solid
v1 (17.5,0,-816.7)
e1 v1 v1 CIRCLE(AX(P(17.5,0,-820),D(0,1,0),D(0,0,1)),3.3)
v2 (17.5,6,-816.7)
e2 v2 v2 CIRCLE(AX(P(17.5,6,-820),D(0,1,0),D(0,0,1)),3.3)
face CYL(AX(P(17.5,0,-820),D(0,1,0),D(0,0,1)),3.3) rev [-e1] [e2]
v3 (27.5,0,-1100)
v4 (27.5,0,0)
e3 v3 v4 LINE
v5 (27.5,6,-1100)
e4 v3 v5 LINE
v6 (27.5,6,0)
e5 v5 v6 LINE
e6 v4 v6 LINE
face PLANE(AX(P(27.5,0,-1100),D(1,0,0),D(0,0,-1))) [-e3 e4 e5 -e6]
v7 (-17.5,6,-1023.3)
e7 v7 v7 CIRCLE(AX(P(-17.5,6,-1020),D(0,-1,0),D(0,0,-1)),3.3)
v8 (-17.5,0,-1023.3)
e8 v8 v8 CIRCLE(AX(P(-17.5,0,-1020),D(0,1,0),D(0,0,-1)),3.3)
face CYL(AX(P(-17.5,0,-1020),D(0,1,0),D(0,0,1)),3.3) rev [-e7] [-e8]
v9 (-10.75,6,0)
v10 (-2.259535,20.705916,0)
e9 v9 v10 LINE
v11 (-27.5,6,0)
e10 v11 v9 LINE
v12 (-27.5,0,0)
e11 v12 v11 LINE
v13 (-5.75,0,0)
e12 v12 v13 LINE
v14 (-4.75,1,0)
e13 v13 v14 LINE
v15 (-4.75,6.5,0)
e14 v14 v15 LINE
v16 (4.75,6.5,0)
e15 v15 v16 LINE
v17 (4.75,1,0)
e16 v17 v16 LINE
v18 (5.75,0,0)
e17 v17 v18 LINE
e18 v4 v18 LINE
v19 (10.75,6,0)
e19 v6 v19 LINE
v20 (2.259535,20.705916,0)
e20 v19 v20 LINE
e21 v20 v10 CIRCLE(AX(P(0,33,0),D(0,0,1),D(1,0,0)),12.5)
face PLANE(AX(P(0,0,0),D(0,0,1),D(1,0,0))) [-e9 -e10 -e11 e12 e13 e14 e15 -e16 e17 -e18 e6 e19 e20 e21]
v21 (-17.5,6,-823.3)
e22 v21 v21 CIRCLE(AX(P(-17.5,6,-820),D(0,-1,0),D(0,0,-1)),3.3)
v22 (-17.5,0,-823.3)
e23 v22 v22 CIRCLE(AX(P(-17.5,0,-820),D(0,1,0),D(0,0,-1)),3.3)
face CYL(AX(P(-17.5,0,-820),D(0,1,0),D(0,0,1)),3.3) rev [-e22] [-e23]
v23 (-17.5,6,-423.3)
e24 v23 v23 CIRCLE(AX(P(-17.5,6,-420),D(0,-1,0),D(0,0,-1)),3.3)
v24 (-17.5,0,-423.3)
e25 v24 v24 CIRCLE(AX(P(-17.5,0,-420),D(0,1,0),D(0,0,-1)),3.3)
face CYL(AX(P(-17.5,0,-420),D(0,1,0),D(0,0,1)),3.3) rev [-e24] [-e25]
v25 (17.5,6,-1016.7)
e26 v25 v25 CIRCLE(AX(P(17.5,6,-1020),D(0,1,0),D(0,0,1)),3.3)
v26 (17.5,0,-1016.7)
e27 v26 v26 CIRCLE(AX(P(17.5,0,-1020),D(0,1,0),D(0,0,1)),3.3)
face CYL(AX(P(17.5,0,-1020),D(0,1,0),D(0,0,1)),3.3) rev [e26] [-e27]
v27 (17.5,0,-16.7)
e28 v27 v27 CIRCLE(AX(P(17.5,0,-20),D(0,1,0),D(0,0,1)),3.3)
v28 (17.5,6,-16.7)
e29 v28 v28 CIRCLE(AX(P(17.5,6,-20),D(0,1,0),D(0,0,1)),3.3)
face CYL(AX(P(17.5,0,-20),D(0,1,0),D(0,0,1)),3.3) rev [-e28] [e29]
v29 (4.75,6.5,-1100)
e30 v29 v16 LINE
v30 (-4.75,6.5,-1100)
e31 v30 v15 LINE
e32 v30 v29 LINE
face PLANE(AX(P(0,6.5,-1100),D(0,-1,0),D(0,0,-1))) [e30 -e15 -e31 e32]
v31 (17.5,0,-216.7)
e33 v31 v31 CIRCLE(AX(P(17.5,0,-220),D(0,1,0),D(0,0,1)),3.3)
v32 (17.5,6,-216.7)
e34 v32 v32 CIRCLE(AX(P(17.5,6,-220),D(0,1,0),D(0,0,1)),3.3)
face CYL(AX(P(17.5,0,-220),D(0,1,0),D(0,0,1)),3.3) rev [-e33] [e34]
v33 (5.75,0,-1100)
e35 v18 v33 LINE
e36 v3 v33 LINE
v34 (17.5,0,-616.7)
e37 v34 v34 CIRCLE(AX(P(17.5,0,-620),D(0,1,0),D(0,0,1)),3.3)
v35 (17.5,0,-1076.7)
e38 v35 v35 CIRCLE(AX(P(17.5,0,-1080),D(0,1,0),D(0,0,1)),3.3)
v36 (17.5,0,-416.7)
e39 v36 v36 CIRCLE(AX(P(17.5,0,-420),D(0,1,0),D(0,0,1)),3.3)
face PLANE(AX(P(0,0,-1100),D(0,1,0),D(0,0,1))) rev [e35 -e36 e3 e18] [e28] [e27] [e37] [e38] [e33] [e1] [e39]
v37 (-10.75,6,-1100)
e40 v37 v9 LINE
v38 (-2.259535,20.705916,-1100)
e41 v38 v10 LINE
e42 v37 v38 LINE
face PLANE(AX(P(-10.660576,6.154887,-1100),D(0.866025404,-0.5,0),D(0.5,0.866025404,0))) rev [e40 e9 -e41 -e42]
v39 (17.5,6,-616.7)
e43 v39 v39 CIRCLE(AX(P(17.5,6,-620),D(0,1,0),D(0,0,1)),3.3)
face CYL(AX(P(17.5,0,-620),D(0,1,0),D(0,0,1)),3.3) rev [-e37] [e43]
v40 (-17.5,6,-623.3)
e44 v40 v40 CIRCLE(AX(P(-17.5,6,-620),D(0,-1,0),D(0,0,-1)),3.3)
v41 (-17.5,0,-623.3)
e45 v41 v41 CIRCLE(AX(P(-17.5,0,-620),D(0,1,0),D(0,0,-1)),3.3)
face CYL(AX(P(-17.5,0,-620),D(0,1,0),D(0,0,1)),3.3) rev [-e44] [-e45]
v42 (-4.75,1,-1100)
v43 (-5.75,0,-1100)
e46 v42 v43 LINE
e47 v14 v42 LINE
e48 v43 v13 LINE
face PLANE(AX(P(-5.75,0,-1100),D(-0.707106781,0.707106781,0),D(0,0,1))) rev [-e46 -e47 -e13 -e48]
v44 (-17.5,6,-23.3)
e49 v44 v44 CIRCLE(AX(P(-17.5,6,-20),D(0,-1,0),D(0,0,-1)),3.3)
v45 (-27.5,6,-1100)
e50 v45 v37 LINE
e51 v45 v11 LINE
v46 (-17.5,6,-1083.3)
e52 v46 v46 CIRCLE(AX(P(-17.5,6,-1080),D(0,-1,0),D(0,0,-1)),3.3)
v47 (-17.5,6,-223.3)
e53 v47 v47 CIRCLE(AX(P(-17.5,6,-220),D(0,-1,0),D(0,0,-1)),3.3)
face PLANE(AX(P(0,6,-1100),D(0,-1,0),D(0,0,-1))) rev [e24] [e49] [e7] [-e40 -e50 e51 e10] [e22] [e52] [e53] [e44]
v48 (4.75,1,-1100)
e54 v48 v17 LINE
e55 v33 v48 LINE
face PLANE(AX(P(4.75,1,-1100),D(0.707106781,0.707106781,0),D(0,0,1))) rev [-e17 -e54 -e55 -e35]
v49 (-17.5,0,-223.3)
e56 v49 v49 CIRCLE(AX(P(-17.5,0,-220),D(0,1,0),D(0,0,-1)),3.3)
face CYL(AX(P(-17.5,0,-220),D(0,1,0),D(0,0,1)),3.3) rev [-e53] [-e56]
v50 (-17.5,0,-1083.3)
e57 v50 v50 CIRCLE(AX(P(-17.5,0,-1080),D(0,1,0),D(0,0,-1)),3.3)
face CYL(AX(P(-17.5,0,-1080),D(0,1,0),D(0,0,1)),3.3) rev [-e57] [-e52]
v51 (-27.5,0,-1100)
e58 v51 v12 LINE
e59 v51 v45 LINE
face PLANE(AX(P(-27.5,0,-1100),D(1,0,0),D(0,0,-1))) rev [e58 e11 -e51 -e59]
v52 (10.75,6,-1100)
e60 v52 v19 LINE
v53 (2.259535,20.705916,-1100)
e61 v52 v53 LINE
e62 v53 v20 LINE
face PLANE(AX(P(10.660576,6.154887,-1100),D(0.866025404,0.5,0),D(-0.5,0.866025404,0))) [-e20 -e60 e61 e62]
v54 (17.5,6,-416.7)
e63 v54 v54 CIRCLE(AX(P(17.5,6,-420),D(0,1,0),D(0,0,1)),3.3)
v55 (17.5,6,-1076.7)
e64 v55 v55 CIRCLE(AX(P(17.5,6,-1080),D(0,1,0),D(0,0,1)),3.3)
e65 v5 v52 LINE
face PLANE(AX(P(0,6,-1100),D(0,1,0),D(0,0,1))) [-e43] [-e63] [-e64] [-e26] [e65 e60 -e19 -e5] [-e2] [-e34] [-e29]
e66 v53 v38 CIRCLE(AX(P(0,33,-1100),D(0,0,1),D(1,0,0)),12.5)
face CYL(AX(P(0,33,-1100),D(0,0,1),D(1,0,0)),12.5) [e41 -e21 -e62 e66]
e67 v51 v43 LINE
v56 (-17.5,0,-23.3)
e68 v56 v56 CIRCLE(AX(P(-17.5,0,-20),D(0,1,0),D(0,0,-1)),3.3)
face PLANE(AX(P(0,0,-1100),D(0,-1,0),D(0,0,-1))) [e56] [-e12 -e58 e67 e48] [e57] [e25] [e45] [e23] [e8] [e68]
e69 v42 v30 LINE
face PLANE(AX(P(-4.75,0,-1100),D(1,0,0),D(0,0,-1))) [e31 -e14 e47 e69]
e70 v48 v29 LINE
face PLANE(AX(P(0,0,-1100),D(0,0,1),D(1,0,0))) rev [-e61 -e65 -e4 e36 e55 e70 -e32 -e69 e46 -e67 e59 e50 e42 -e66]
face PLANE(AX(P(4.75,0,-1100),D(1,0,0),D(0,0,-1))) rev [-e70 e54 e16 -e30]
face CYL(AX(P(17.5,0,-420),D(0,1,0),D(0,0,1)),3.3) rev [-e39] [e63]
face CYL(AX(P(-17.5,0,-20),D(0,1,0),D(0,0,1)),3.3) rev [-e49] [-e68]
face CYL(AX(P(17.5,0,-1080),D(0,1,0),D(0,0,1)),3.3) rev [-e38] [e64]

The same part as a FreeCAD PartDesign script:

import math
import FreeCAD as App
import Part
import Sketcher
Q = App.Units.Quantity


def edges_at(feature, points):
    """Names of the edges that pass closest to the given points."""
    edges = feature.Shape.Edges
    near = lambda p: min(range(len(edges)), key=lambda i: edges[i].distToShape(Part.Vertex(*p))[0])
    return sorted({f"Edge{near(p) + 1}" for p in points})

doc = App.newDocument("Part")
body = doc.addObject("PartDesign::Body", "Body")

sketch1 = doc.addObject("Sketcher::SketchObject", "Sketch")
body.addObject(sketch1)
sketch1.AttachmentSupport = (doc.XY_Plane, [""])
sketch1.MapMode = "FlatFace"
sketch1.addGeometry(Part.ArcOfCircle(Part.Circle(App.Vector(0, 33, 0), App.Vector(0, 0, 1), 12.5), math.radians(-80), math.radians(260)), False)
sketch1.addGeometry(Part.LineSegment(App.Vector(-2.3, 20.7, 0), App.Vector(-10.8, 6, 0)), False)
sketch1.addGeometry(Part.LineSegment(App.Vector(-10.8, 6, 0), App.Vector(-27.5, 6, 0)), False)
sketch1.addGeometry(Part.LineSegment(App.Vector(-27.5, 6, 0), App.Vector(-27.5, 0, 0)), False)
sketch1.addGeometry(Part.LineSegment(App.Vector(-27.5, 0, 0), App.Vector(-4.8, 0, 0)), False)
sketch1.addGeometry(Part.LineSegment(App.Vector(-4.8, 0, 0), App.Vector(-4.8, 6.5, 0)), False)
sketch1.addGeometry(Part.LineSegment(App.Vector(-4.8, 6.5, 0), App.Vector(4.8, 6.5, 0)), False)
sketch1.addGeometry(Part.LineSegment(App.Vector(4.8, 6.5, 0), App.Vector(4.8, 0, 0)), False)
sketch1.addGeometry(Part.LineSegment(App.Vector(4.8, 0, 0), App.Vector(27.5, 0, 0)), False)
sketch1.addGeometry(Part.LineSegment(App.Vector(27.5, 0, 0), App.Vector(27.5, 6, 0)), False)
sketch1.addGeometry(Part.LineSegment(App.Vector(27.5, 6, 0), App.Vector(10.8, 6, 0)), False)
sketch1.addGeometry(Part.LineSegment(App.Vector(10.8, 6, 0), App.Vector(2.3, 20.7, 0)), False)
sketch1.addConstraint(Sketcher.Constraint("Coincident", 0, 2, 1, 1))
sketch1.addConstraint(Sketcher.Constraint("Coincident", 1, 2, 2, 1))
sketch1.addConstraint(Sketcher.Constraint("Coincident", 2, 2, 3, 1))
sketch1.addConstraint(Sketcher.Constraint("Coincident", 3, 2, 4, 1))
sketch1.addConstraint(Sketcher.Constraint("Coincident", 4, 2, 5, 1))
sketch1.addConstraint(Sketcher.Constraint("Coincident", 5, 2, 6, 1))
sketch1.addConstraint(Sketcher.Constraint("Coincident", 6, 2, 7, 1))
sketch1.addConstraint(Sketcher.Constraint("Coincident", 7, 2, 8, 1))
sketch1.addConstraint(Sketcher.Constraint("Coincident", 8, 2, 9, 1))
sketch1.addConstraint(Sketcher.Constraint("Coincident", 9, 2, 10, 1))
sketch1.addConstraint(Sketcher.Constraint("Coincident", 10, 2, 11, 1))
sketch1.addConstraint(Sketcher.Constraint("Coincident", 11, 2, 0, 1))
sketch1.addConstraint(Sketcher.Constraint("Horizontal", 2))
sketch1.addConstraint(Sketcher.Constraint("Vertical", 3))
sketch1.addConstraint(Sketcher.Constraint("Horizontal", 4))
sketch1.addConstraint(Sketcher.Constraint("Vertical", 5))
sketch1.addConstraint(Sketcher.Constraint("Horizontal", 6))
sketch1.addConstraint(Sketcher.Constraint("Vertical", 7))
sketch1.addConstraint(Sketcher.Constraint("Horizontal", 8))
sketch1.addConstraint(Sketcher.Constraint("Vertical", 9))
sketch1.addConstraint(Sketcher.Constraint("Horizontal", 10))
sketch1.addConstraint(Sketcher.Constraint("Symmetric", 4, 2, 7, 2, -1, 1))
sketch1.addConstraint(Sketcher.Constraint("Symmetric", 3, 2, 8, 2, -2))
sketch1.addConstraint(Sketcher.Constraint("Symmetric", 1, 2, 10, 2, -2))
sketch1.addConstraint(Sketcher.Constraint("Symmetric", 0, 2, 11, 2, -2))
sketch1.addConstraint(Sketcher.Constraint("Radius", 0, Q("12.5 mm")))
sketch1.addConstraint(Sketcher.Constraint("DistanceY", 3, 2, 3, 1, Q("6 mm")))
sketch1.addConstraint(Sketcher.Constraint("Angle", 1, Q("-120 deg")))
sketch1.addConstraint(Sketcher.Constraint("DistanceX", 6, 1, 6, 2, Q("9.5 mm")))
sketch1.addConstraint(Sketcher.Constraint("DistanceY", 5, 1, 5, 2, Q("6.5 mm")))
sketch1.addConstraint(Sketcher.Constraint("DistanceY", -1, 1, 0, 3, Q("33 mm")))
sketch1.addConstraint(Sketcher.Constraint("DistanceX", 1, 2, 4, 2, Q("6 mm")))
sketch1.addConstraint(Sketcher.Constraint("DistanceX", 2, 2, 2, 1, Q("16.75 mm")))
pad1 = doc.addObject("PartDesign::Pad", "Pad")
body.addObject(pad1)
pad1.Profile = sketch1
pad1.Length = 1100
pad1.Reversed = True
doc.recompute()

chamfer = doc.addObject("PartDesign::Chamfer", "Chamfer")
body.addObject(chamfer)
chamfer.Base = (pad1, edges_at(pad1, [(4.75, 0, -550), (-4.75, 0, -550)]))
chamfer.Size = 1

sketch2 = doc.addObject("Sketcher::SketchObject", "Sketch001")
body.addObject(sketch2)
sketch2.AttachmentSupport = (doc.XZ_Plane, [""])
sketch2.MapMode = "FlatFace"
sketch2.AttachmentOffset = App.Placement(App.Vector(0, 0, -6), App.Rotation())
sketch2.addGeometry(Part.Circle(App.Vector(17.5, -20, 0), App.Vector(0, 0, 1), 3.3), False)
sketch2.addGeometry(Part.Circle(App.Vector(-17.5, -20, 0), App.Vector(0, 0, 1), 3.3), False)
sketch2.addGeometry(Part.Circle(App.Vector(-17.5, -220, 0), App.Vector(0, 0, 1), 3.3), False)
sketch2.addGeometry(Part.Circle(App.Vector(17.5, -220, 0), App.Vector(0, 0, 1), 3.3), False)
sketch2.addGeometry(Part.Circle(App.Vector(-17.5, -420, 0), App.Vector(0, 0, 1), 3.3), False)
sketch2.addGeometry(Part.Circle(App.Vector(17.5, -420, 0), App.Vector(0, 0, 1), 3.3), False)
sketch2.addGeometry(Part.Circle(App.Vector(-17.5, -620, 0), App.Vector(0, 0, 1), 3.3), False)
sketch2.addGeometry(Part.Circle(App.Vector(17.5, -620, 0), App.Vector(0, 0, 1), 3.3), False)
sketch2.addGeometry(Part.Circle(App.Vector(-17.5, -820, 0), App.Vector(0, 0, 1), 3.3), False)
sketch2.addGeometry(Part.Circle(App.Vector(17.5, -820, 0), App.Vector(0, 0, 1), 3.3), False)
sketch2.addGeometry(Part.Circle(App.Vector(-17.5, -1020, 0), App.Vector(0, 0, 1), 3.3), False)
sketch2.addGeometry(Part.Circle(App.Vector(17.5, -1020, 0), App.Vector(0, 0, 1), 3.3), False)
sketch2.addGeometry(Part.Circle(App.Vector(-17.5, -1220, 0), App.Vector(0, 0, 1), 3.3), False)
sketch2.addGeometry(Part.Circle(App.Vector(17.5, -1220, 0), App.Vector(0, 0, 1), 3.3), False)
sketch2.addGeometry(Part.Circle(App.Vector(-17.5, -1420, 0), App.Vector(0, 0, 1), 3.3), False)
sketch2.addGeometry(Part.Circle(App.Vector(17.5, -1420, 0), App.Vector(0, 0, 1), 3.3), False)
sketch2.addGeometry(Part.Circle(App.Vector(-17.5, -1620, 0), App.Vector(0, 0, 1), 3.3), False)
sketch2.addGeometry(Part.Circle(App.Vector(17.5, -1620, 0), App.Vector(0, 0, 1), 3.3), False)
sketch2.addGeometry(Part.Circle(App.Vector(17.5, -1080, 0), App.Vector(0, 0, 1), 3.3), False)
sketch2.addGeometry(Part.Circle(App.Vector(-17.5, -1080, 0), App.Vector(0, 0, 1), 3.3), False)
sketch2.addConstraint(Sketcher.Constraint("Equal", 0, 1))
sketch2.addConstraint(Sketcher.Constraint("Equal", 1, 2))
sketch2.addConstraint(Sketcher.Constraint("Equal", 2, 3))
sketch2.addConstraint(Sketcher.Constraint("Equal", 3, 4))
sketch2.addConstraint(Sketcher.Constraint("Equal", 4, 5))
sketch2.addConstraint(Sketcher.Constraint("Equal", 5, 6))
sketch2.addConstraint(Sketcher.Constraint("Equal", 6, 7))
sketch2.addConstraint(Sketcher.Constraint("Equal", 7, 8))
sketch2.addConstraint(Sketcher.Constraint("Equal", 8, 9))
sketch2.addConstraint(Sketcher.Constraint("Equal", 9, 10))
sketch2.addConstraint(Sketcher.Constraint("Equal", 10, 11))
sketch2.addConstraint(Sketcher.Constraint("Equal", 11, 12))
sketch2.addConstraint(Sketcher.Constraint("Equal", 12, 13))
sketch2.addConstraint(Sketcher.Constraint("Equal", 13, 14))
sketch2.addConstraint(Sketcher.Constraint("Equal", 14, 15))
sketch2.addConstraint(Sketcher.Constraint("Equal", 15, 16))
sketch2.addConstraint(Sketcher.Constraint("Equal", 16, 17))
sketch2.addConstraint(Sketcher.Constraint("Equal", 17, 18))
sketch2.addConstraint(Sketcher.Constraint("Equal", 18, 19))
sketch2.addConstraint(Sketcher.Constraint("Symmetric", 0, 3, 1, 3, -2))
sketch2.addConstraint(Sketcher.Constraint("Symmetric", 2, 3, 3, 3, -2))
sketch2.addConstraint(Sketcher.Constraint("Symmetric", 4, 3, 5, 3, -2))
sketch2.addConstraint(Sketcher.Constraint("Symmetric", 6, 3, 7, 3, -2))
sketch2.addConstraint(Sketcher.Constraint("Symmetric", 8, 3, 9, 3, -2))
sketch2.addConstraint(Sketcher.Constraint("Symmetric", 10, 3, 11, 3, -2))
sketch2.addConstraint(Sketcher.Constraint("Symmetric", 12, 3, 13, 3, -2))
sketch2.addConstraint(Sketcher.Constraint("Symmetric", 14, 3, 15, 3, -2))
sketch2.addConstraint(Sketcher.Constraint("Symmetric", 16, 3, 17, 3, -2))
sketch2.addConstraint(Sketcher.Constraint("Symmetric", 18, 3, 19, 3, -2))
sketch2.addConstraint(Sketcher.Constraint("Vertical", 1, 3, 2, 3))
sketch2.addConstraint(Sketcher.Constraint("Vertical", 2, 3, 4, 3))
sketch2.addConstraint(Sketcher.Constraint("Vertical", 4, 3, 6, 3))
sketch2.addConstraint(Sketcher.Constraint("Vertical", 6, 3, 8, 3))
sketch2.addConstraint(Sketcher.Constraint("Vertical", 8, 3, 10, 3))
sketch2.addConstraint(Sketcher.Constraint("Vertical", 10, 3, 12, 3))
sketch2.addConstraint(Sketcher.Constraint("Vertical", 12, 3, 14, 3))
sketch2.addConstraint(Sketcher.Constraint("Vertical", 14, 3, 16, 3))
sketch2.addConstraint(Sketcher.Constraint("Vertical", 17, 3, 18, 3))
sketch2.addConstraint(Sketcher.Constraint("Diameter", 0, Q("6.6 mm")))
sketch2.addConstraint(Sketcher.Constraint("DistanceY", 0, 3, -1, 1, Q("20 mm")))
sketch2.addConstraint(Sketcher.Constraint("DistanceY", 2, 3, -1, 1, Q("220 mm")))
sketch2.addConstraint(Sketcher.Constraint("DistanceY", 4, 3, -1, 1, Q("420 mm")))
sketch2.addConstraint(Sketcher.Constraint("DistanceY", 6, 3, -1, 1, Q("620 mm")))
sketch2.addConstraint(Sketcher.Constraint("DistanceY", 8, 3, -1, 1, Q("820 mm")))
sketch2.addConstraint(Sketcher.Constraint("DistanceY", 10, 3, -1, 1, Q("1020 mm")))
sketch2.addConstraint(Sketcher.Constraint("DistanceY", 12, 3, -1, 1, Q("1220 mm")))
sketch2.addConstraint(Sketcher.Constraint("DistanceY", 14, 3, -1, 1, Q("1420 mm")))
sketch2.addConstraint(Sketcher.Constraint("DistanceY", 16, 3, -1, 1, Q("1620 mm")))
sketch2.addConstraint(Sketcher.Constraint("DistanceY", 18, 3, -1, 1, Q("1080 mm")))
sketch2.addConstraint(Sketcher.Constraint("DistanceX", 1, 3, 0, 3, Q("35 mm")))
pocket1 = doc.addObject("PartDesign::Pocket", "Pocket")
body.addObject(pocket1)
pocket1.Profile = sketch2
pocket1.Type = "ThroughAll"
pocket1.Midplane = True

doc.recompute()
